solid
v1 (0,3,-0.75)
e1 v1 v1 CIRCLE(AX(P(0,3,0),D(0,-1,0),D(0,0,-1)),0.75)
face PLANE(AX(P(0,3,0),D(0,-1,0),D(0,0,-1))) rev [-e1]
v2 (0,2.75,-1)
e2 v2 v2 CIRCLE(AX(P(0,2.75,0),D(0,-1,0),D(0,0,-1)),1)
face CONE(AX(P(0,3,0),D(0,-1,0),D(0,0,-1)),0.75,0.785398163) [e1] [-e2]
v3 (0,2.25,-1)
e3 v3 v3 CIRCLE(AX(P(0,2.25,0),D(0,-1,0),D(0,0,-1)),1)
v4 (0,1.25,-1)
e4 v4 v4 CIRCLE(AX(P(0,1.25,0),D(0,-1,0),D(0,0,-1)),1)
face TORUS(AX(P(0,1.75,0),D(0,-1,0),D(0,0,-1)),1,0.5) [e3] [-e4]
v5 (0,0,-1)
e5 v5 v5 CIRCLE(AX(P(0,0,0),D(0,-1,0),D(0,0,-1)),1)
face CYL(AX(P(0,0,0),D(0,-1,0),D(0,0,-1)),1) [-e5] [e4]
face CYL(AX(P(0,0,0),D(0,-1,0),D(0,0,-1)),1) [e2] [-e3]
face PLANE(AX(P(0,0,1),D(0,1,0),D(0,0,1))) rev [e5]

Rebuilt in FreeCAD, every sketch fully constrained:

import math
import FreeCAD as App
import Part
import Sketcher
Q = App.Units.Quantity

doc = App.newDocument("Part")
body = doc.addObject("PartDesign::Body", "Body")

sketch1 = doc.addObject("Sketcher::SketchObject", "Sketch")
body.addObject(sketch1)
sketch1.AttachmentSupport = (doc.YZ_Plane, [""])
sketch1.MapMode = "FlatFace"
sketch1.addGeometry([
    Part.LineSegment(App.Vector(0, 0, 0), App.Vector(3, 0, 0)),
    Part.LineSegment(App.Vector(3, 0, 0), App.Vector(3, 0.75, 0)),
    Part.LineSegment(App.Vector(3, 0.75, 0), App.Vector(2.75, 1, 0)),
    Part.LineSegment(App.Vector(2.75, 1, 0), App.Vector(2.25, 1, 0)),
    Part.ArcOfCircle(Part.Circle(App.Vector(1.75, 1, 0), App.Vector(0, 0, 1), 0.5), math.radians(0), math.radians(180)),
    Part.LineSegment(App.Vector(1.25, 1, 0), App.Vector(0, 1, 0)),
    Part.LineSegment(App.Vector(0, 1, 0), App.Vector(0, 0, 0)),
], False)
sketch1.addConstraint([
    Sketcher.Constraint("Coincident", 0, 2, 1, 1),
    Sketcher.Constraint("Coincident", 1, 2, 2, 1),
    Sketcher.Constraint("Coincident", 2, 2, 3, 1),
    Sketcher.Constraint("Coincident", 3, 2, 4, 1),
    Sketcher.Constraint("Coincident", 4, 2, 5, 1),
    Sketcher.Constraint("Coincident", 5, 2, 6, 1),
    Sketcher.Constraint("Coincident", 6, 2, 0, 1),
    Sketcher.Constraint("Horizontal", 0),
    Sketcher.Constraint("Vertical", 1),
    Sketcher.Constraint("Horizontal", 3),
    Sketcher.Constraint("Horizontal", 5),
    Sketcher.Constraint("Vertical", 6),
    Sketcher.Constraint("Coincident", 6, 2, -1, 1),
    Sketcher.Constraint("Horizontal", 4, 3, 2, 2),
    Sketcher.Constraint("Horizontal", 3, 2, 4, 2),
    Sketcher.Constraint("Radius", 4, Q("0.5 mm")),
    Sketcher.Constraint("DistanceX", 0, 1, 0, 2, Q("3 mm")),
    Sketcher.Constraint("DistanceY", 6, 2, 6, 1, Q("1 mm")),
    Sketcher.Constraint("Angle", 2, Q("135 deg")),
    Sketcher.Constraint("DistanceX", 3, 2, 3, 1, Q("0.5 mm")),
    Sketcher.Constraint("DistanceX", 5, 2, 5, 1, Q("1.25 mm")),
])
revolution = doc.addObject("PartDesign::Revolution", "Revolution")
body.addObject(revolution)
revolution.Profile = sketch1
revolution.ReferenceAxis = (sketch1, ["H_Axis"])
revolution.Angle = 360

doc.recompute()
